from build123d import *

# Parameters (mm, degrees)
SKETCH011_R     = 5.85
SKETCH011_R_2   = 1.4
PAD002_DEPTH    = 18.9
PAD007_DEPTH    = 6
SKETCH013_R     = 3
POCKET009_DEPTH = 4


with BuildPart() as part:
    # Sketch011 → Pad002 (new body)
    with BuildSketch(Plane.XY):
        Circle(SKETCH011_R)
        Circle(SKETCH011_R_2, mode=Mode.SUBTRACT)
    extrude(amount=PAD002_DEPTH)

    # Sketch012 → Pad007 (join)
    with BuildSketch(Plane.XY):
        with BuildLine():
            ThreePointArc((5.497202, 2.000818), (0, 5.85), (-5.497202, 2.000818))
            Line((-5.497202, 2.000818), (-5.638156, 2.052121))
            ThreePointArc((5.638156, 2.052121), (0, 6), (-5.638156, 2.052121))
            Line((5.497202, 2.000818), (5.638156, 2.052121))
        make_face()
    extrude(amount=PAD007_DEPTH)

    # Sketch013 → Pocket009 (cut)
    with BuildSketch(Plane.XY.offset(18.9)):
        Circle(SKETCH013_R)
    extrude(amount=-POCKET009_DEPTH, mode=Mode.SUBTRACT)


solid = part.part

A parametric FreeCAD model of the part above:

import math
import FreeCAD as App
import Part
import Sketcher

doc = App.newDocument("Part")
body = doc.addObject("PartDesign::Body", "Body")

# Sketch on XY plane
sketch1 = doc.addObject("Sketcher::SketchObject", "Sketch")
body.addObject(sketch1)
sketch1.AttachmentSupport = (doc.XY_Plane, [""])
sketch1.MapMode = "FlatFace"
sketch1.addGeometry(Part.Circle(App.Vector(0, 0, 0), App.Vector(0, 0, 1), 5.8), False)
sketch1.addGeometry(Part.Circle(App.Vector(0, 0, 0), App.Vector(0, 0, 1), 1.4), False)
sketch1.addConstraint(Sketcher.Constraint("Coincident", 0, 3, -1, 1))
sketch1.addConstraint(Sketcher.Constraint("Coincident", 1, 3, -1, 1))
sketch1.addConstraint(Sketcher.Constraint("Diameter", 0, 11.7))
sketch1.addConstraint(Sketcher.Constraint("Diameter", 1, 2.8))
pad1 = doc.addObject("PartDesign::Pad", "Pad")
body.addObject(pad1)
pad1.Profile = sketch1
pad1.Length = 18.9

# Sketch on XY plane
sketch2 = doc.addObject("Sketcher::SketchObject", "Sketch001")
body.addObject(sketch2)
sketch2.AttachmentSupport = (doc.XY_Plane, [""])
sketch2.MapMode = "FlatFace"
sketch2.addGeometry(Part.ArcOfCircle(Part.Circle(App.Vector(0, 0, 0), App.Vector(0, 0, 1), 5.85), math.radians(20), math.radians(160)), False)
sketch2.addGeometry(Part.LineSegment(App.Vector(5.5, 2, 0), App.Vector(5.64, 2.05, 0)), False)
sketch2.addGeometry(Part.ArcOfCircle(Part.Circle(App.Vector(0, 0, 0), App.Vector(0, 0, 1), 6), math.radians(20), math.radians(160)), False)
sketch2.addGeometry(Part.LineSegment(App.Vector(-5.64, 2.05, 0), App.Vector(-5.5, 2, 0)), False)
sketch2.addConstraint(Sketcher.Constraint("Coincident", 0, 1, 1, 1))
sketch2.addConstraint(Sketcher.Constraint("Coincident", 1, 2, 2, 1))
sketch2.addConstraint(Sketcher.Constraint("Coincident", 2, 2, 3, 1))
sketch2.addConstraint(Sketcher.Constraint("Coincident", 3, 2, 0, 2))
sketch2.addConstraint(Sketcher.Constraint("Coincident", 0, 3, -1, 1))
sketch2.addConstraint(Sketcher.Constraint("Coincident", 2, 3, -1, 1))
sketch2.addConstraint(Sketcher.Constraint("Horizontal", 1, 2, 2, 2))
sketch2.addConstraint(Sketcher.Constraint("Horizontal", 0, 1, 3, 2))
sketch2.addConstraint(Sketcher.Constraint("Radius", 2, 6.0))
sketch2.addConstraint(Sketcher.Constraint("Radius", 0, 5.85))
sketch2.addConstraint(Sketcher.Constraint("DistanceX", -1, 1, 0, 1, 5.497202))
sketch2.addConstraint(Sketcher.Constraint("DistanceY", -1, 1, 1, 2, 2.052121))
pad2 = doc.addObject("PartDesign::Pad", "Pad001")
body.addObject(pad2)
pad2.Profile = sketch2
pad2.Length = 6

# Sketch on XY plane
sketch3 = doc.addObject("Sketcher::SketchObject", "Sketch002")
body.addObject(sketch3)
sketch3.AttachmentSupport = (doc.XY_Plane, [""])
sketch3.MapMode = "FlatFace"
sketch3.AttachmentOffset = App.Placement(App.Vector(0, 0, 18.9), App.Rotation())
sketch3.addGeometry(Part.Circle(App.Vector(0, 0, 0), App.Vector(0, 0, 1), 3), False)
sketch3.addConstraint(Sketcher.Constraint("Coincident", 0, 3, -1, 1))
sketch3.addConstraint(Sketcher.Constraint("Diameter", 0, 6.0))
pocket1 = doc.addObject("PartDesign::Pocket", "Pocket")
body.addObject(pocket1)
pocket1.Profile = sketch3
pocket1.Length = 4

doc.recompute()
